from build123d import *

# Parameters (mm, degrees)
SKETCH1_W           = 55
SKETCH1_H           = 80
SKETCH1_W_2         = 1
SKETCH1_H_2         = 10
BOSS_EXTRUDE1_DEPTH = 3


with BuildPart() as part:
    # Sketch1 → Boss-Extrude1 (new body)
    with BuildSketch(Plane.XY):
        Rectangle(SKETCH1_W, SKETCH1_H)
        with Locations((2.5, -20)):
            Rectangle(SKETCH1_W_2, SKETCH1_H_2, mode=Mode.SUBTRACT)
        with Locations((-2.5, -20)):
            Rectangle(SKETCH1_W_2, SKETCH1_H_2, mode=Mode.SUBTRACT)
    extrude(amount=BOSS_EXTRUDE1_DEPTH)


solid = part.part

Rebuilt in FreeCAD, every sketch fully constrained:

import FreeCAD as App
import Part
import Sketcher

V = App.Vector
Q = App.Units.Quantity

doc = App.newDocument("Part")
body = doc.addObject("PartDesign::Body", "Body")

# Sketch on XY plane
sketch1 = body.newObject("Sketcher::SketchObject", "Sketch")
sketch1.AttachmentSupport = (doc.getObject("XY_Plane"), [""])
sketch1.MapMode = "FlatFace"
sketch1.addGeometry(Part.LineSegment(V(-27.5, 40, 0), V(-27.5, -40, 0)), False)
sketch1.addGeometry(Part.LineSegment(V(-27.5, -40, 0), V(27.5, -40, 0)), False)
sketch1.addGeometry(Part.LineSegment(V(27.5, -40, 0), V(27.5, 40, 0)), False)
sketch1.addGeometry(Part.LineSegment(V(27.5, 40, 0), V(-27.5, 40, 0)), False)
sketch1.addGeometry(Part.LineSegment(V(-2, -25, 0), V(-3, -25, 0)), False)
sketch1.addGeometry(Part.LineSegment(V(-3, -25, 0), V(-3, -15, 0)), False)
sketch1.addGeometry(Part.LineSegment(V(-3, -15, 0), V(-2, -15, 0)), False)
sketch1.addGeometry(Part.LineSegment(V(-2, -15, 0), V(-2, -25, 0)), False)
sketch1.addGeometry(Part.LineSegment(V(3, -25, 0), V(2, -25, 0)), False)
sketch1.addGeometry(Part.LineSegment(V(2, -25, 0), V(2, -15, 0)), False)
sketch1.addGeometry(Part.LineSegment(V(2, -15, 0), V(3, -15, 0)), False)
sketch1.addGeometry(Part.LineSegment(V(3, -15, 0), V(3, -25, 0)), False)
sketch1.addConstraint(Sketcher.Constraint("Coincident", 0, 2, 1, 1))
sketch1.addConstraint(Sketcher.Constraint("Coincident", 1, 2, 2, 1))
sketch1.addConstraint(Sketcher.Constraint("Coincident", 2, 2, 3, 1))
sketch1.addConstraint(Sketcher.Constraint("Coincident", 3, 2, 0, 1))
sketch1.addConstraint(Sketcher.Constraint("Coincident", 4, 2, 5, 1))
sketch1.addConstraint(Sketcher.Constraint("Coincident", 5, 2, 6, 1))
sketch1.addConstraint(Sketcher.Constraint("Coincident", 6, 2, 7, 1))
sketch1.addConstraint(Sketcher.Constraint("Coincident", 7, 2, 4, 1))
sketch1.addConstraint(Sketcher.Constraint("Coincident", 8, 2, 9, 1))
sketch1.addConstraint(Sketcher.Constraint("Coincident", 9, 2, 10, 1))
sketch1.addConstraint(Sketcher.Constraint("Coincident", 10, 2, 11, 1))
sketch1.addConstraint(Sketcher.Constraint("Coincident", 11, 2, 8, 1))
sketch1.addConstraint(Sketcher.Constraint("Vertical", 0))
sketch1.addConstraint(Sketcher.Constraint("Horizontal", 1))
sketch1.addConstraint(Sketcher.Constraint("Vertical", 2))
sketch1.addConstraint(Sketcher.Constraint("Horizontal", 3))
sketch1.addConstraint(Sketcher.Constraint("Horizontal", 4))
sketch1.addConstraint(Sketcher.Constraint("Vertical", 5))
sketch1.addConstraint(Sketcher.Constraint("Horizontal", 6))
sketch1.addConstraint(Sketcher.Constraint("Vertical", 7))
sketch1.addConstraint(Sketcher.Constraint("Horizontal", 8))
sketch1.addConstraint(Sketcher.Constraint("Vertical", 9))
sketch1.addConstraint(Sketcher.Constraint("Horizontal", 10))
sketch1.addConstraint(Sketcher.Constraint("Vertical", 11))
sketch1.addConstraint(Sketcher.Constraint("Symmetric", 0, 2, 2, 2, -1, 1))
sketch1.addConstraint(Sketcher.Constraint("Symmetric", 7, 2, 8, 2, -2))
sketch1.addConstraint(Sketcher.Constraint("Symmetric", 5, 2, 10, 2, -2))
sketch1.addConstraint(Sketcher.Constraint("DistanceX", 1, 1, 1, 2, Q("55 mm")))
sketch1.addConstraint(Sketcher.Constraint("DistanceX", 4, 2, 4, 1, Q("1 mm")))
sketch1.addConstraint(Sketcher.Constraint("DistanceY", 0, 2, 0, 1, Q("80 mm")))
sketch1.addConstraint(Sketcher.Constraint("DistanceY", 5, 1, 5, 2, Q("10 mm")))
sketch1.addConstraint(Sketcher.Constraint("DistanceX", 4, 2, -1, 1, Q("3 mm")))
sketch1.addConstraint(Sketcher.Constraint("DistanceY", 4, 2, -1, 1, Q("25 mm")))
pad1 = body.newObject("PartDesign::Pad", "Pad")
pad1.Profile = sketch1
pad1.Length = 3

doc.recompute()
